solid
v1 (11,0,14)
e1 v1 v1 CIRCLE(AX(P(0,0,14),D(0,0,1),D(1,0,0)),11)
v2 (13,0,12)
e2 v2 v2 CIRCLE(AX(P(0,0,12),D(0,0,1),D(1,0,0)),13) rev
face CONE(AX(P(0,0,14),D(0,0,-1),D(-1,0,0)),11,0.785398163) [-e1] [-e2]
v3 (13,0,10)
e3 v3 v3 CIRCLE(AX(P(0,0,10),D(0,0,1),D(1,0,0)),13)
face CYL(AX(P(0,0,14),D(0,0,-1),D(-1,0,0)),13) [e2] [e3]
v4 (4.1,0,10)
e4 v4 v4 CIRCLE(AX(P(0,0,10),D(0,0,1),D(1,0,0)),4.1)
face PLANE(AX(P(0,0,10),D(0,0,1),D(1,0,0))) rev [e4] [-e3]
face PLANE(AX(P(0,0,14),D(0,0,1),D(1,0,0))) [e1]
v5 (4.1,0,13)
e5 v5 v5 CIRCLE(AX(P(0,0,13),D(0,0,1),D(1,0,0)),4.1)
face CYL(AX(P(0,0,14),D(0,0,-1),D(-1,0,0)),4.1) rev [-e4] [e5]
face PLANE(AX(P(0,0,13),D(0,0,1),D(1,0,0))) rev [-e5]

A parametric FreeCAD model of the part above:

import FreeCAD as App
import Part
import Sketcher

V = App.Vector


def edges_at(feature, points):
    """Names of the edges that pass closest to the given points."""
    edges = feature.Shape.Edges
    near = lambda p: min(range(len(edges)), key=lambda i: edges[i].distToShape(Part.Vertex(*p))[0])
    return sorted({f"Edge{near(p) + 1}" for p in points})

doc = App.newDocument("Part")
body = doc.addObject("PartDesign::Body", "Body")

# Sketch on XY plane
sketch1 = doc.addObject("Sketcher::SketchObject", "Sketch")
body.addObject(sketch1)
sketch1.AttachmentSupport = (doc.XY_Plane, [""])
sketch1.MapMode = "FlatFace"
sketch1.addGeometry(Part.Circle(V(0, 0, 0), V(0, 0, 1), 3.7), False)
sketch1.addConstraint([
    Sketcher.Constraint("Coincident", 0, 3, -1, 1),
    Sketcher.Constraint("Diameter", 0, 7.4),
])
pad1 = doc.addObject("PartDesign::Pad", "Pad")
body.addObject(pad1)
pad1.Profile = sketch1
pad1.Length = 10

# Sketch on XY plane
sketch2 = doc.addObject("Sketcher::SketchObject", "Sketch001")
body.addObject(sketch2)
sketch2.AttachmentSupport = (doc.XY_Plane, [""])
sketch2.MapMode = "FlatFace"
sketch2.addGeometry(Part.Circle(V(0, 0, 0), V(0, 0, 1), 5), False)
sketch2.addConstraint([
    Sketcher.Constraint("Coincident", 0, 3, -1, 1),
    Sketcher.Constraint("Diameter", 0, 10.0),
])
pad2 = doc.addObject("PartDesign::Pad", "Pad001")
body.addObject(pad2)
pad2.Profile = sketch2
pad2.Length = 2
pad2.Reversed = True

# Sketch on XY plane
sketch3 = doc.addObject("Sketcher::SketchObject", "Sketch002")
body.addObject(sketch3)
sketch3.AttachmentSupport = (doc.XY_Plane, [""])
sketch3.MapMode = "FlatFace"
sketch3.AttachmentOffset = App.Placement(V(0, 0, 10), App.Rotation())
sketch3.addGeometry(Part.Circle(V(0, 0, 0), V(0, 0, 1), 22), False)
sketch3.addConstraint([
    Sketcher.Constraint("PointOnObject", 0, 3, -2),
    Sketcher.Constraint("Diameter", 0, 43.774628),
    Sketcher.Constraint("DistanceY", -1, 1, 0, 3, 0.481739),
])
pocket1 = doc.addObject("PartDesign::Pocket", "Pocket")
body.addObject(pocket1)
pocket1.Profile = sketch3
pocket1.Length = 23
body2 = doc.addObject("PartDesign::Body", "Body001")

# Sketch on XY plane
sketch4 = doc.addObject("Sketcher::SketchObject", "Sketch003")
body2.addObject(sketch4)
sketch4.AttachmentSupport = (doc.getObject("XY_Plane001"), [""])
sketch4.MapMode = "FlatFace"
sketch4.AttachmentOffset = App.Placement(V(0, 0, 10), App.Rotation())
sketch4.addGeometry([
    Part.Circle(V(0, 0, 0), V(0, 0, 1), 13),
    Part.Circle(V(0, 0, 0), V(0, 0, 1), 4.1),
], False)
sketch4.addConstraint([
    Sketcher.Constraint("Coincident", 0, 3, -1, 1),
    Sketcher.Constraint("Coincident", 1, 3, -1, 1),
    Sketcher.Constraint("Diameter", 0, 26.0),
    Sketcher.Constraint("Diameter", 1, 8.2),
])
pad3 = doc.addObject("PartDesign::Pad", "Pad002")
body2.addObject(pad3)
pad3.Profile = sketch4
pad3.Length = 4
doc.recompute()

chamfer = doc.addObject("PartDesign::Chamfer", "Chamfer")
body2.addObject(chamfer)
chamfer.Base = (pad3, edges_at(pad3, [(-13, 0, 14)]))
chamfer.Size = 2

# Sketch on XY plane
sketch5 = doc.addObject("Sketcher::SketchObject", "Sketch004")
body2.addObject(sketch5)
sketch5.AttachmentSupport = (doc.getObject("XY_Plane001"), [""])
sketch5.MapMode = "FlatFace"
sketch5.AttachmentOffset = App.Placement(V(0, 0, 14), App.Rotation())
sketch5.addGeometry(Part.Circle(V(0, 0, 0), V(0, 0, 1), 6), False)
sketch5.addConstraint([
    Sketcher.Constraint("Coincident", 0, 3, -1, 1),
    Sketcher.Constraint("Diameter", 0, 11.000763),
])
pad4 = doc.addObject("PartDesign::Pad", "Pad003")
body2.addObject(pad4)
pad4.Profile = sketch5
pad4.Length = 1
pad4.Reversed = True

doc.recompute()
